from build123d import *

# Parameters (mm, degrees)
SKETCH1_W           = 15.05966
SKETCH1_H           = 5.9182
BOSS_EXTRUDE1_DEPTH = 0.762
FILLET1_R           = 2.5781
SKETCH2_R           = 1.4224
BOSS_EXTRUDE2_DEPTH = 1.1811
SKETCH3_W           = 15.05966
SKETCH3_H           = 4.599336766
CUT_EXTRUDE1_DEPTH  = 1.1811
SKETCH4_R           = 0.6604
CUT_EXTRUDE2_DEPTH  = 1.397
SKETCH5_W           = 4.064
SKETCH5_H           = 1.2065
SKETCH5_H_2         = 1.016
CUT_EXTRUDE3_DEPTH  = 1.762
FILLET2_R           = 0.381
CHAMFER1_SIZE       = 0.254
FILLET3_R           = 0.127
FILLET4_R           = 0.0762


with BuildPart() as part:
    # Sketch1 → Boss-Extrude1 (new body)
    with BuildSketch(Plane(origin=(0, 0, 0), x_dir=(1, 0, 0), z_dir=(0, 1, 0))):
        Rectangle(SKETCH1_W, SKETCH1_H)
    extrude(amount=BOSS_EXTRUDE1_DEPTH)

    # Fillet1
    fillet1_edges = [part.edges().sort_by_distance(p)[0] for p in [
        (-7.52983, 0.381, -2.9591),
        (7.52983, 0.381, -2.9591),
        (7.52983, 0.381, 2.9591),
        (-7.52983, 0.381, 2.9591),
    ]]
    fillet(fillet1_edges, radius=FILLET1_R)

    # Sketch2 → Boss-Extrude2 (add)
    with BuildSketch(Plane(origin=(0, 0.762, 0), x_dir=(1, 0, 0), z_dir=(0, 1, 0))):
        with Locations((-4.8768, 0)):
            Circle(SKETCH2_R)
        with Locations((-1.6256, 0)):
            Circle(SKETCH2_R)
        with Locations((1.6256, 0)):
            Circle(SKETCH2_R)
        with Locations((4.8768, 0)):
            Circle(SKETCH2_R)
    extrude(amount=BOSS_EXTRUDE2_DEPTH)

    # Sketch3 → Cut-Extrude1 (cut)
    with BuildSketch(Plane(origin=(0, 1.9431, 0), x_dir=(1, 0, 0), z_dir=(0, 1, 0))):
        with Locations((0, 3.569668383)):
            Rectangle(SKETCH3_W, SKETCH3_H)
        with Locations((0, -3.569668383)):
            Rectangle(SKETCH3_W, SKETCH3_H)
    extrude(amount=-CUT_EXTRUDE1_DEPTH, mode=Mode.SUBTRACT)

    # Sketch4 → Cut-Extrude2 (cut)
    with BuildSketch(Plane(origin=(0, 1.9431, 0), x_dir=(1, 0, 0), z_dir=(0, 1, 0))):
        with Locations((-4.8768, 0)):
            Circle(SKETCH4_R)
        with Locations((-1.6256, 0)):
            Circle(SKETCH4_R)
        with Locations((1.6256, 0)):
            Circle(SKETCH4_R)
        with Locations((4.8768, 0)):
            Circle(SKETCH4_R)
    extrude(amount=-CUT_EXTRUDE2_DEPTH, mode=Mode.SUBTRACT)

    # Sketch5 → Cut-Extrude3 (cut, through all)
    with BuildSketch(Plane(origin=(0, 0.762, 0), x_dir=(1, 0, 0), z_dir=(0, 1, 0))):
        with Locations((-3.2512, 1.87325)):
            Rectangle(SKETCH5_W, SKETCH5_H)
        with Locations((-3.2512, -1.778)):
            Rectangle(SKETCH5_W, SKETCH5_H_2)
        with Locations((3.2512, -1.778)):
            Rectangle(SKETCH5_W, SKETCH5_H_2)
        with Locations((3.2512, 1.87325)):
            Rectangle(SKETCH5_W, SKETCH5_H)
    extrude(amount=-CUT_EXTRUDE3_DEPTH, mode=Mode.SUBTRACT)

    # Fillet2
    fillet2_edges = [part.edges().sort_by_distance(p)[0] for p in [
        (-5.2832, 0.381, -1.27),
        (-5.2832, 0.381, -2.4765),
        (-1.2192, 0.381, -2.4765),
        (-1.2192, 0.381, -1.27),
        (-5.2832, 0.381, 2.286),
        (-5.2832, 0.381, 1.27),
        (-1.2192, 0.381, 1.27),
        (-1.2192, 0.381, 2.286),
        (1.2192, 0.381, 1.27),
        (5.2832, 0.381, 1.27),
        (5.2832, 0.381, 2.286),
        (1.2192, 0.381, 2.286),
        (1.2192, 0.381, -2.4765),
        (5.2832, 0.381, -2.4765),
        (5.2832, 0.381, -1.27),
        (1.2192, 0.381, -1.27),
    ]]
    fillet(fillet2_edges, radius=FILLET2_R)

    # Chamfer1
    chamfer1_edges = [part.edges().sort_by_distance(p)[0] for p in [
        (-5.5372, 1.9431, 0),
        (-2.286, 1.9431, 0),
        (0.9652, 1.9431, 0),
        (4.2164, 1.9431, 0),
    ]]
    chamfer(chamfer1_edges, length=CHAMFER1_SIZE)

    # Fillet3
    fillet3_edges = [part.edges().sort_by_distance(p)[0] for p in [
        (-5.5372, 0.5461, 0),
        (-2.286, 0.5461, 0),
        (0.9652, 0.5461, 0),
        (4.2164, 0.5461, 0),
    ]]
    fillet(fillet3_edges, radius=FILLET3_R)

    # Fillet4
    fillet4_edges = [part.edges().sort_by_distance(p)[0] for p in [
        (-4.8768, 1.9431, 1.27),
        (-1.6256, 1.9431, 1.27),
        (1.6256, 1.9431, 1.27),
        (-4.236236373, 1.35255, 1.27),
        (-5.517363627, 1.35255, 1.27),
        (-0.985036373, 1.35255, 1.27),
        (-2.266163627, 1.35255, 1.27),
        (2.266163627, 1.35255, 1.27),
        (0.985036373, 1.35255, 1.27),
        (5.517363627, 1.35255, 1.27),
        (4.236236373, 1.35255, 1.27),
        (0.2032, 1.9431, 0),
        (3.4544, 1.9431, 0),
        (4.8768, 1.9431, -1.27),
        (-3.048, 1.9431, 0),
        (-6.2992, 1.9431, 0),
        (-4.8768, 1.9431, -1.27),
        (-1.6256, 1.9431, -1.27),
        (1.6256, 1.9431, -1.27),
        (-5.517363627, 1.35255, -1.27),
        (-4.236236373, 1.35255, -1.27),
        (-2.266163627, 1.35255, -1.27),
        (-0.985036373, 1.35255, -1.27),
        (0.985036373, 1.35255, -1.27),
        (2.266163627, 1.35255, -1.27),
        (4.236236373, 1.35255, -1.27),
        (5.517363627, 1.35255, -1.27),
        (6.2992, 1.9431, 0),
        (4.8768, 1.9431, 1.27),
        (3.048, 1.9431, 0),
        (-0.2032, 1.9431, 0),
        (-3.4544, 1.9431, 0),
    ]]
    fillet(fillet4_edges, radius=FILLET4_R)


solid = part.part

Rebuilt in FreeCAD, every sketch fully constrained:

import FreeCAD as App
import Part
import Sketcher

V = App.Vector
Q = App.Units.Quantity


def edges_at(feature, points):
    """Names of the edges that pass closest to the given points."""
    edges = feature.Shape.Edges
    near = lambda p: min(range(len(edges)), key=lambda i: edges[i].distToShape(Part.Vertex(*p))[0])
    return sorted({f"Edge{near(p) + 1}" for p in points})

doc = App.newDocument("Part")
params = doc.addObject("Spreadsheet::Sheet", "Params")
for row, (alias, value) in enumerate([
    ("sketch1_height", "0.233 in"),
    ("pad1_length", "0.03 in"),
    ("fillet_radius", "0.1015 in"),
    ("sketch2_diameter", "0.112 in"),
    ("pad2_length", "0.0465 in"),
    ("pocket1_length", "0.0465 in"),
    ("sketch4_diameter", "0.052 in"),
    ("pocket2_length", "0.055 in"),
    ("sketch5_width", "0.16 in"),
    ("sketch5_height", "0.04 in"),
    ("fillet2_radius", "0.015 in"),
    ("chamfer_size", "0.01 in"),
    ("fillet3_radius", "0.005 in"),
    ("fillet4_radius", "0.003 in"),
], start=1):
    params.set(f"A{row}", alias)
    params.set(f"B{row}", "=" + value)
    params.setAlias(f"B{row}", alias)

body = doc.addObject("PartDesign::Body", "Body")

# Sketch on XZ plane
sketch1 = body.newObject("Sketcher::SketchObject", "Sketch")
sketch1.AttachmentSupport = (doc.getObject("XZ_Plane"), [""])
sketch1.MapMode = "FlatFace"
sketch1.addGeometry(Part.LineSegment(V(-8, -3, 0), V(-8, 3, 0)), False)
sketch1.addGeometry(Part.LineSegment(V(-8, 3, 0), V(8, 3, 0)), False)
sketch1.addGeometry(Part.LineSegment(V(8, 3, 0), V(8, -3, 0)), False)
sketch1.addGeometry(Part.LineSegment(V(8, -3, 0), V(-8, -3, 0)), False)
sketch1.addConstraint(Sketcher.Constraint("Coincident", 0, 2, 1, 1))
sketch1.addConstraint(Sketcher.Constraint("Coincident", 1, 2, 2, 1))
sketch1.addConstraint(Sketcher.Constraint("Coincident", 2, 2, 3, 1))
sketch1.addConstraint(Sketcher.Constraint("Coincident", 3, 2, 0, 1))
sketch1.addConstraint(Sketcher.Constraint("Vertical", 0))
sketch1.addConstraint(Sketcher.Constraint("Horizontal", 1))
sketch1.addConstraint(Sketcher.Constraint("Vertical", 2))
sketch1.addConstraint(Sketcher.Constraint("Horizontal", 3))
sketch1.addConstraint(Sketcher.Constraint("Symmetric", 0, 2, 2, 2, -1, 1))
sketch1.addConstraint(Sketcher.Constraint("DistanceY", 0, 1, 0, 2, Q("0.233 in")))
sketch1.addConstraint(Sketcher.Constraint("DistanceX", 1, 1, 1, 2, Q("0.5929 in")))
sketch1.setExpression("Constraints[9]", "Params.sketch1_height")
pad1 = body.newObject("PartDesign::Pad", "Pad")
pad1.Profile = sketch1
pad1.setExpression("Length", "Params.pad1_length")
pad1.Reversed = True
doc.recompute()

fillet = body.newObject("PartDesign::Fillet", "Fillet")
fillet.Base = (pad1, edges_at(pad1, [
    (-7.53, 0.381, -2.959),
    (7.53, 0.381, -2.959),
    (7.53, 0.381, 2.959),
    (-7.53, 0.381, 2.959),
]))
fillet.setExpression("Radius", "Params.fillet_radius")

# Sketch on XZ plane
sketch2 = body.newObject("Sketcher::SketchObject", "Sketch001")
sketch2.AttachmentSupport = (doc.getObject("XZ_Plane"), [""])
sketch2.MapMode = "FlatFace"
sketch2.AttachmentOffset = App.Placement(V(0, 0, -0.03 * 25.4), App.Rotation())
sketch2.addGeometry(Part.Circle(V(-4.9, 0, 0), V(0, 0, 1), 1.4), False)
sketch2.addGeometry(Part.Circle(V(-1.6, 0, 0), V(0, 0, 1), 1.4), False)
sketch2.addGeometry(Part.Circle(V(1.6, 0, 0), V(0, 0, 1), 1.4), False)
sketch2.addGeometry(Part.Circle(V(4.9, 0, 0), V(0, 0, 1), 1.4), False)
sketch2.addConstraint(Sketcher.Constraint("Equal", 0, 1))
sketch2.addConstraint(Sketcher.Constraint("Equal", 1, 2))
sketch2.addConstraint(Sketcher.Constraint("Equal", 2, 3))
sketch2.addConstraint(Sketcher.Constraint("Symmetric", 1, 3, 2, 3, -1, 1))
sketch2.addConstraint(Sketcher.Constraint("Symmetric", 0, 3, 3, 3, -1, 1))
sketch2.addConstraint(Sketcher.Constraint("PointOnObject", 0, 3, -1))
sketch2.addConstraint(Sketcher.Constraint("PointOnObject", 1, 3, -1))
sketch2.addConstraint(Sketcher.Constraint("Diameter", 0, Q("0.112 in")))
sketch2.addConstraint(Sketcher.Constraint("DistanceX", 0, 3, -1, 1, Q("0.192 in")))
sketch2.addConstraint(Sketcher.Constraint("DistanceX", 1, 3, -1, 1, Q("0.064 in")))
sketch2.setExpression("Constraints[7]", "Params.sketch2_diameter")
pad2 = body.newObject("PartDesign::Pad", "Pad001")
pad2.Profile = sketch2
pad2.setExpression("Length", "Params.pad2_length")
pad2.Reversed = True

# Sketch on XZ plane
sketch3 = body.newObject("Sketcher::SketchObject", "Sketch002")
sketch3.AttachmentSupport = (doc.getObject("XZ_Plane"), [""])
sketch3.MapMode = "FlatFace"
sketch3.AttachmentOffset = App.Placement(V(0, 0, -0.0765 * 25.4), App.Rotation())
sketch3.addGeometry(Part.LineSegment(V(-7.5, -5.9, 0), V(-7.5, -1.3, 0)), False)
sketch3.addGeometry(Part.LineSegment(V(-7.5, -1.3, 0), V(7.5, -1.3, 0)), False)
sketch3.addGeometry(Part.LineSegment(V(7.5, -1.3, 0), V(7.5, -5.9, 0)), False)
sketch3.addGeometry(Part.LineSegment(V(7.5, -5.9, 0), V(-7.5, -5.9, 0)), False)
sketch3.addGeometry(Part.LineSegment(V(-7.5, 1.3, 0), V(-7.5, 5.9, 0)), False)
sketch3.addGeometry(Part.LineSegment(V(-7.5, 5.9, 0), V(7.5, 5.9, 0)), False)
sketch3.addGeometry(Part.LineSegment(V(7.5, 5.9, 0), V(7.5, 1.3, 0)), False)
sketch3.addGeometry(Part.LineSegment(V(7.5, 1.3, 0), V(-7.5, 1.3, 0)), False)
sketch3.addConstraint(Sketcher.Constraint("Coincident", 0, 2, 1, 1))
sketch3.addConstraint(Sketcher.Constraint("Coincident", 1, 2, 2, 1))
sketch3.addConstraint(Sketcher.Constraint("Coincident", 2, 2, 3, 1))
sketch3.addConstraint(Sketcher.Constraint("Coincident", 3, 2, 0, 1))
sketch3.addConstraint(Sketcher.Constraint("Coincident", 4, 2, 5, 1))
sketch3.addConstraint(Sketcher.Constraint("Coincident", 5, 2, 6, 1))
sketch3.addConstraint(Sketcher.Constraint("Coincident", 6, 2, 7, 1))
sketch3.addConstraint(Sketcher.Constraint("Coincident", 7, 2, 4, 1))
sketch3.addConstraint(Sketcher.Constraint("Vertical", 0))
sketch3.addConstraint(Sketcher.Constraint("Horizontal", 1))
sketch3.addConstraint(Sketcher.Constraint("Vertical", 2))
sketch3.addConstraint(Sketcher.Constraint("Horizontal", 3))
sketch3.addConstraint(Sketcher.Constraint("Vertical", 4))
sketch3.addConstraint(Sketcher.Constraint("Horizontal", 5))
sketch3.addConstraint(Sketcher.Constraint("Vertical", 6))
sketch3.addConstraint(Sketcher.Constraint("Horizontal", 7))
sketch3.addConstraint(Sketcher.Constraint("Symmetric", 2, 2, 4, 2, -1, 1))
sketch3.addConstraint(Sketcher.Constraint("Symmetric", 0, 2, 6, 2, -1, 1))
sketch3.addConstraint(Sketcher.Constraint("Vertical", 3, 2, 4, 2))
sketch3.addConstraint(Sketcher.Constraint("DistanceY", 1, 2, 6, 2, Q("0.1 in")))
sketch3.addConstraint(Sketcher.Constraint("DistanceX", 1, 1, 1, 2, Q("0.5929 in")))
sketch3.addConstraint(Sketcher.Constraint("DistanceY", 0, 1, 0, 2, Q("4.599337 mm")))
pocket1 = body.newObject("PartDesign::Pocket", "Pocket")
pocket1.Profile = sketch3
pocket1.setExpression("Length", "Params.pocket1_length")
pocket1.Reversed = True

# Sketch on XZ plane
sketch4 = body.newObject("Sketcher::SketchObject", "Sketch003")
sketch4.AttachmentSupport = (doc.getObject("XZ_Plane"), [""])
sketch4.MapMode = "FlatFace"
sketch4.AttachmentOffset = App.Placement(V(0, 0, -0.0765 * 25.4), App.Rotation())
sketch4.addGeometry(Part.Circle(V(-4.9, 0, 0), V(0, 0, 1), 0.7), False)
sketch4.addGeometry(Part.Circle(V(-1.6, 0, 0), V(0, 0, 1), 0.7), False)
sketch4.addGeometry(Part.Circle(V(1.6, 0, 0), V(0, 0, 1), 0.7), False)
sketch4.addGeometry(Part.Circle(V(4.9, 0, 0), V(0, 0, 1), 0.7), False)
sketch4.addConstraint(Sketcher.Constraint("Equal", 0, 1))
sketch4.addConstraint(Sketcher.Constraint("Equal", 1, 2))
sketch4.addConstraint(Sketcher.Constraint("Equal", 2, 3))
sketch4.addConstraint(Sketcher.Constraint("Symmetric", 1, 3, 2, 3, -1, 1))
sketch4.addConstraint(Sketcher.Constraint("Symmetric", 0, 3, 3, 3, -1, 1))
sketch4.addConstraint(Sketcher.Constraint("PointOnObject", 0, 3, -1))
sketch4.addConstraint(Sketcher.Constraint("PointOnObject", 1, 3, -1))
sketch4.addConstraint(Sketcher.Constraint("Diameter", 0, Q("0.052 in")))
sketch4.addConstraint(Sketcher.Constraint("DistanceX", 0, 3, -1, 1, Q("0.192 in")))
sketch4.addConstraint(Sketcher.Constraint("DistanceX", 1, 3, -1, 1, Q("0.064 in")))
sketch4.setExpression("Constraints[7]", "Params.sketch4_diameter")
pocket2 = body.newObject("PartDesign::Pocket", "Pocket001")
pocket2.Profile = sketch4
pocket2.setExpression("Length", "Params.pocket2_length")
pocket2.Reversed = True

# Sketch on XZ plane
sketch5 = body.newObject("Sketcher::SketchObject", "Sketch004")
sketch5.AttachmentSupport = (doc.getObject("XZ_Plane"), [""])
sketch5.MapMode = "FlatFace"
sketch5.AttachmentOffset = App.Placement(V(0, 0, -0.03 * 25.4), App.Rotation())
sketch5.addGeometry(Part.LineSegment(V(-5.3, -2.5, 0), V(-5.3, -1.3, 0)), False)
sketch5.addGeometry(Part.LineSegment(V(-5.3, -1.3, 0), V(-1.2, -1.3, 0)), False)
sketch5.addGeometry(Part.LineSegment(V(-1.2, -1.3, 0), V(-1.2, -2.5, 0)), False)
sketch5.addGeometry(Part.LineSegment(V(-1.2, -2.5, 0), V(-5.3, -2.5, 0)), False)
sketch5.addGeometry(Part.LineSegment(V(-5.3, 1.3, 0), V(-5.3, 2.3, 0)), False)
sketch5.addGeometry(Part.LineSegment(V(-5.3, 2.3, 0), V(-1.2, 2.3, 0)), False)
sketch5.addGeometry(Part.LineSegment(V(-1.2, 2.3, 0), V(-1.2, 1.3, 0)), False)
sketch5.addGeometry(Part.LineSegment(V(-1.2, 1.3, 0), V(-5.3, 1.3, 0)), False)
sketch5.addGeometry(Part.LineSegment(V(1.2, 1.3, 0), V(1.2, 2.3, 0)), False)
sketch5.addGeometry(Part.LineSegment(V(1.2, 2.3, 0), V(5.3, 2.3, 0)), False)
sketch5.addGeometry(Part.LineSegment(V(5.3, 2.3, 0), V(5.3, 1.3, 0)), False)
sketch5.addGeometry(Part.LineSegment(V(5.3, 1.3, 0), V(1.2, 1.3, 0)), False)
sketch5.addGeometry(Part.LineSegment(V(1.2, -2.5, 0), V(1.2, -1.3, 0)), False)
sketch5.addGeometry(Part.LineSegment(V(1.2, -1.3, 0), V(5.3, -1.3, 0)), False)
sketch5.addGeometry(Part.LineSegment(V(5.3, -1.3, 0), V(5.3, -2.5, 0)), False)
sketch5.addGeometry(Part.LineSegment(V(5.3, -2.5, 0), V(1.2, -2.5, 0)), False)
sketch5.addConstraint(Sketcher.Constraint("Coincident", 0, 2, 1, 1))
sketch5.addConstraint(Sketcher.Constraint("Coincident", 1, 2, 2, 1))
sketch5.addConstraint(Sketcher.Constraint("Coincident", 2, 2, 3, 1))
sketch5.addConstraint(Sketcher.Constraint("Coincident", 3, 2, 0, 1))
sketch5.addConstraint(Sketcher.Constraint("Coincident", 4, 2, 5, 1))
sketch5.addConstraint(Sketcher.Constraint("Coincident", 5, 2, 6, 1))
sketch5.addConstraint(Sketcher.Constraint("Coincident", 6, 2, 7, 1))
sketch5.addConstraint(Sketcher.Constraint("Coincident", 7, 2, 4, 1))
sketch5.addConstraint(Sketcher.Constraint("Coincident", 8, 2, 9, 1))
sketch5.addConstraint(Sketcher.Constraint("Coincident", 9, 2, 10, 1))
sketch5.addConstraint(Sketcher.Constraint("Coincident", 10, 2, 11, 1))
sketch5.addConstraint(Sketcher.Constraint("Coincident", 11, 2, 8, 1))
sketch5.addConstraint(Sketcher.Constraint("Coincident", 12, 2, 13, 1))
sketch5.addConstraint(Sketcher.Constraint("Coincident", 13, 2, 14, 1))
sketch5.addConstraint(Sketcher.Constraint("Coincident", 14, 2, 15, 1))
sketch5.addConstraint(Sketcher.Constraint("Coincident", 15, 2, 12, 1))
sketch5.addConstraint(Sketcher.Constraint("Vertical", 0))
sketch5.addConstraint(Sketcher.Constraint("Horizontal", 1))
sketch5.addConstraint(Sketcher.Constraint("Vertical", 2))
sketch5.addConstraint(Sketcher.Constraint("Horizontal", 3))
sketch5.addConstraint(Sketcher.Constraint("Vertical", 4))
sketch5.addConstraint(Sketcher.Constraint("Horizontal", 5))
sketch5.addConstraint(Sketcher.Constraint("Vertical", 6))
sketch5.addConstraint(Sketcher.Constraint("Horizontal", 7))
sketch5.addConstraint(Sketcher.Constraint("Vertical", 8))
sketch5.addConstraint(Sketcher.Constraint("Horizontal", 9))
sketch5.addConstraint(Sketcher.Constraint("Vertical", 10))
sketch5.addConstraint(Sketcher.Constraint("Horizontal", 11))
sketch5.addConstraint(Sketcher.Constraint("Vertical", 12))
sketch5.addConstraint(Sketcher.Constraint("Horizontal", 13))
sketch5.addConstraint(Sketcher.Constraint("Vertical", 14))
sketch5.addConstraint(Sketcher.Constraint("Horizontal", 15))
sketch5.addConstraint(Sketcher.Constraint("Symmetric", 0, 2, 10, 2, -1, 1))
sketch5.addConstraint(Sketcher.Constraint("Symmetric", 6, 2, 12, 2, -1, 1))
sketch5.addConstraint(Sketcher.Constraint("Symmetric", 5, 2, 8, 2, -2))
sketch5.addConstraint(Sketcher.Constraint("Symmetric", 7, 2, 10, 2, -2))
sketch5.addConstraint(Sketcher.Constraint("Symmetric", 3, 2, 14, 2, -2))
sketch5.addConstraint(Sketcher.Constraint("Vertical", 2, 2, 5, 2))
sketch5.addConstraint(Sketcher.Constraint("DistanceX", 1, 1, 1, 2, Q("0.16 in")))
sketch5.addConstraint(Sketcher.Constraint("DistanceY", 4, 1, 4, 2, Q("0.04 in")))
sketch5.addConstraint(Sketcher.Constraint("DistanceY", 1, 2, 6, 2, Q("0.1 in")))
sketch5.addConstraint(Sketcher.Constraint("DistanceY", 0, 1, 0, 2, Q("0.0475 in")))
sketch5.addConstraint(Sketcher.Constraint("DistanceX", 0, 2, -1, 1, Q("0.208 in")))
sketch5.setExpression("Constraints[38]", "Params.sketch5_width")
sketch5.setExpression("Constraints[39]", "Params.sketch5_height")
pocket3 = body.newObject("PartDesign::Pocket", "Pocket002")
pocket3.Profile = sketch5
pocket3.Type = "ThroughAll"
pocket3.Reversed = True
doc.recompute()

fillet2 = body.newObject("PartDesign::Fillet", "Fillet001")
fillet2.Base = (pocket3, edges_at(pocket3, [
    (-5.283, 0.381, -1.27),
    (-5.283, 0.381, -2.477),
    (-1.219, 0.381, -2.477),
    (-1.219, 0.381, -1.27),
    (-5.283, 0.381, 2.286),
    (-5.283, 0.381, 1.27),
    (-1.219, 0.381, 1.27),
    (-1.219, 0.381, 2.286),
    (1.219, 0.381, 1.27),
    (5.283, 0.381, 1.27),
    (5.283, 0.381, 2.286),
    (1.219, 0.381, 2.286),
    (1.219, 0.381, -2.477),
    (5.283, 0.381, -2.477),
    (5.283, 0.381, -1.27),
    (1.219, 0.381, -1.27),
]))
fillet2.setExpression("Radius", "Params.fillet2_radius")
doc.recompute()

chamfer = body.newObject("PartDesign::Chamfer", "Chamfer")
chamfer.Base = (fillet2, edges_at(fillet2, [
    (-5.537, 1.943, 0),
    (-2.286, 1.943, 0),
    (0.965, 1.943, 0),
    (4.216, 1.943, 0),
]))
chamfer.setExpression("Size", "Params.chamfer_size")
doc.recompute()

fillet3 = body.newObject("PartDesign::Fillet", "Fillet002")
fillet3.Base = (chamfer, edges_at(chamfer, [
    (-5.537, 0.546, 0),
    (-2.286, 0.546, 0),
    (0.965, 0.546, 0),
    (4.216, 0.546, 0),
]))
fillet3.setExpression("Radius", "Params.fillet3_radius")
doc.recompute()

fillet4 = body.newObject("PartDesign::Fillet", "Fillet003")
fillet4.Base = (fillet3, edges_at(fillet3, [
    (-4.877, 1.943, 1.27),
    (-1.626, 1.943, 1.27),
    (1.626, 1.943, 1.27),
    (-4.236, 1.353, 1.27),
    (-5.517, 1.353, 1.27),
    (-0.985, 1.353, 1.27),
    (-2.266, 1.353, 1.27),
    (2.266, 1.353, 1.27),
    (0.985, 1.353, 1.27),
    (5.517, 1.353, 1.27),
    (4.236, 1.353, 1.27),
    (0.203, 1.943, 0),
    (3.454, 1.943, 0),
    (4.877, 1.943, -1.27),
    (-3.048, 1.943, 0),
    (-6.299, 1.943, 0),
    (-4.877, 1.943, -1.27),
    (-1.626, 1.943, -1.27),
    (1.626, 1.943, -1.27),
    (-5.517, 1.353, -1.27),
    (-4.236, 1.353, -1.27),
    (-2.266, 1.353, -1.27),
    (-0.985, 1.353, -1.27),
    (0.985, 1.353, -1.27),
    (2.266, 1.353, -1.27),
    (4.236, 1.353, -1.27),
    (5.517, 1.353, -1.27),
    (6.299, 1.943, 0),
    (4.877, 1.943, 1.27),
    (3.048, 1.943, 0),
    (-0.203, 1.943, 0),
    (-3.454, 1.943, 0),
]))
fillet4.setExpression("Radius", "Params.fillet4_radius")

doc.recompute()
